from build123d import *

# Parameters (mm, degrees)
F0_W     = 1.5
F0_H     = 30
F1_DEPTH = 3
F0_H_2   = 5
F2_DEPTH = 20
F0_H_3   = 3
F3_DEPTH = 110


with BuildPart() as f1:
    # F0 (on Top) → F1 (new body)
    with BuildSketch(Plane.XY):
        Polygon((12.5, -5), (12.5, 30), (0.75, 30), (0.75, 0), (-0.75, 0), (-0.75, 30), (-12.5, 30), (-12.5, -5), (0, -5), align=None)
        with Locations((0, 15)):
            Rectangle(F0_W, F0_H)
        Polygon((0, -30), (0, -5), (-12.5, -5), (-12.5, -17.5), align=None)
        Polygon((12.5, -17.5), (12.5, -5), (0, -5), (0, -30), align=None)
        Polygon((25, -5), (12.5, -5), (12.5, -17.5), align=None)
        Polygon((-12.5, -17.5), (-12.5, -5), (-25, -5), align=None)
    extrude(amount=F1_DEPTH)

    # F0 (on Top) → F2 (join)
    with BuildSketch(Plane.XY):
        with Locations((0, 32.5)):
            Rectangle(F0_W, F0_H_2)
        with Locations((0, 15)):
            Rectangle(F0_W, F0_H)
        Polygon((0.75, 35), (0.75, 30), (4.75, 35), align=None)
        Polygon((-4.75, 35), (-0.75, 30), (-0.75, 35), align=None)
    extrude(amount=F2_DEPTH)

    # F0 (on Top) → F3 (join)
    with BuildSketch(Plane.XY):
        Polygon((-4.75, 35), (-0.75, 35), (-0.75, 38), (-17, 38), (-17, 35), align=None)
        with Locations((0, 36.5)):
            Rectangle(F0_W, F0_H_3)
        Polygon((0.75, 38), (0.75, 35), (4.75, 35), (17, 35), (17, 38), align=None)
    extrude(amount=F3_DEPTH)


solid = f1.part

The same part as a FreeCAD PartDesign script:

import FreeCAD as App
import Part
import Sketcher

V = App.Vector


def add_polygon(sketch, points):
    """Adds a closed chain of lines whose ends are joined by coincident constraints."""
    first, n = sketch.GeometryCount, len(points)
    for a, b in zip(points, points[1:] + points[:1]):
        sketch.addGeometry(Part.LineSegment(App.Vector(*a, 0), App.Vector(*b, 0)), False)
    for i in range(n):
        sketch.addConstraint(Sketcher.Constraint("Coincident", first + i, 2, first + (i + 1) % n, 1))

doc = App.newDocument("Part")
body = doc.addObject("PartDesign::Body", "Body")

sketch1 = body.newObject("Sketcher::SketchObject", "Sketch")
sketch1.AttachmentSupport = (doc.getObject("XY_Plane"), [""])
sketch1.MapMode = "FlatFace"
add_polygon(sketch1, [(12, 30), (-12, 30), (-12, -5), (-25, -5), (0, -30), (25, -5), (12, -5)])
sketch1.addConstraint([
    Sketcher.Constraint("Horizontal", 0),
    Sketcher.Constraint("Vertical", 1),
    Sketcher.Constraint("Horizontal", 2),
    Sketcher.Constraint("Horizontal", 5),
    Sketcher.Constraint("Vertical", 6),
    Sketcher.Constraint("Symmetric", 2, 2, 4, 2, -2),
    Sketcher.Constraint("PointOnObject", 3, 2, -2),
    Sketcher.Constraint("Perpendicular", 3, 4),
    Sketcher.Constraint("Equal", 2, 5),
    Sketcher.Constraint("DistanceX", 0, 2, 0, 1, 25.0),
    Sketcher.Constraint("DistanceY", 1, 2, 1, 1, 35.0),
    Sketcher.Constraint("DistanceX", 2, 2, 2, 1, 12.5),
    Sketcher.Constraint("DistanceY", -1, 1, 0, 2, 30.0),
])
pad1 = body.newObject("PartDesign::Pad", "Pad")
pad1.Profile = sketch1
pad1.Length = 3

sketch2 = body.newObject("Sketcher::SketchObject", "Sketch001")
sketch2.AttachmentSupport = (doc.getObject("XY_Plane"), [""])
sketch2.MapMode = "FlatFace"
add_polygon(sketch2, [(-0.8, 30), (-0.8, 0), (0.8, 0), (0.8, 30), (4.8, 35), (-4.8, 35)])
sketch2.addConstraint([
    Sketcher.Constraint("Vertical", 0),
    Sketcher.Constraint("Horizontal", 1),
    Sketcher.Constraint("Vertical", 2),
    Sketcher.Constraint("Horizontal", 4),
    Sketcher.Constraint("Symmetric", 0, 2, 1, 2, -1, 1),
    Sketcher.Constraint("Horizontal", 2, 2, 5, 2),
    Sketcher.Constraint("Equal", 3, 5),
    Sketcher.Constraint("DistanceY", 0, 2, 0, 1, 30.0),
    Sketcher.Constraint("DistanceX", 1, 1, 1, 2, 1.5),
    Sketcher.Constraint("DistanceX", 4, 2, 4, 1, 9.5),
    Sketcher.Constraint("DistanceY", -1, 1, 3, 2, 35.0),
])
pad2 = body.newObject("PartDesign::Pad", "Pad001")
pad2.Profile = sketch2
pad2.Length = 20

sketch3 = body.newObject("Sketcher::SketchObject", "Sketch002")
sketch3.AttachmentSupport = (doc.getObject("XY_Plane"), [""])
sketch3.MapMode = "FlatFace"
add_polygon(sketch3, [(-17, 38), (-17, 35), (17, 35), (17, 38)])
sketch3.addConstraint([
    Sketcher.Constraint("Vertical", 0),
    Sketcher.Constraint("Horizontal", 1),
    Sketcher.Constraint("Vertical", 2),
    Sketcher.Constraint("Horizontal", 3),
    Sketcher.Constraint("DistanceX", 1, 1, 1, 2, 34.0),
    Sketcher.Constraint("DistanceY", 0, 2, 0, 1, 3.0),
    Sketcher.Constraint("DistanceX", 0, 2, -1, 1, 17.0),
    Sketcher.Constraint("DistanceY", -1, 1, 0, 2, 35.0),
])
pad3 = body.newObject("PartDesign::Pad", "Pad002")
pad3.Profile = sketch3
pad3.Length = 110

doc.recompute()
